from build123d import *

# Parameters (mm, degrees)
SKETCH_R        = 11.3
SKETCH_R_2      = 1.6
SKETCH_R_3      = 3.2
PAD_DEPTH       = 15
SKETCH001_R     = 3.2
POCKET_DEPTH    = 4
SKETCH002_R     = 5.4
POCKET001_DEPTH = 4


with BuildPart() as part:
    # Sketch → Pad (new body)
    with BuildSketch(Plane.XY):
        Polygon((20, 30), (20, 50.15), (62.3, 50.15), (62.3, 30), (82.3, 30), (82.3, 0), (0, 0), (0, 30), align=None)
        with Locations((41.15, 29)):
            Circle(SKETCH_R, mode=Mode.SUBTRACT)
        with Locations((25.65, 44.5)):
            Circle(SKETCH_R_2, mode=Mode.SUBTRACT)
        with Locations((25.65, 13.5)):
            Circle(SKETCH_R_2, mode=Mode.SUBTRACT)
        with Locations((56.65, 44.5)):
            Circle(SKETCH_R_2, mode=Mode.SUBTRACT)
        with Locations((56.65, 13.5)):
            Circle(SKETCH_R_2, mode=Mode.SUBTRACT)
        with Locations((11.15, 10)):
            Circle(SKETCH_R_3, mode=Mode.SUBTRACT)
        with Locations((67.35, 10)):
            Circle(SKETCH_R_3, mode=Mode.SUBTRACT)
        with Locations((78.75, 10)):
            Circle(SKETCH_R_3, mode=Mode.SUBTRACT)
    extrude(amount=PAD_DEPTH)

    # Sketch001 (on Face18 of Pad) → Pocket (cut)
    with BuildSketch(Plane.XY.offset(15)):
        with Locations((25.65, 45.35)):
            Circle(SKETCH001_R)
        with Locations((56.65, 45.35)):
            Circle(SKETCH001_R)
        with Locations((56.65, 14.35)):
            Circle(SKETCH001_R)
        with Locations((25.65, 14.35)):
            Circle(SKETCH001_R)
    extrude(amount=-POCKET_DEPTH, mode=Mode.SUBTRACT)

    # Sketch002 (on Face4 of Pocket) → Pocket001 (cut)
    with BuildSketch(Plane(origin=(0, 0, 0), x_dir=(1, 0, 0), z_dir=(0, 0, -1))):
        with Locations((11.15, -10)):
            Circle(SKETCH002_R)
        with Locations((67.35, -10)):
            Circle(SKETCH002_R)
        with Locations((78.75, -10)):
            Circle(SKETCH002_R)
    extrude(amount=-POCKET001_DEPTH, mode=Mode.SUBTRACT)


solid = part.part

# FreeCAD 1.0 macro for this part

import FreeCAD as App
import Part
import Sketcher
from FreeCAD import Vector

doc = App.newDocument("Part")
body = doc.addObject("PartDesign::Body", "Body")

# Sketch on XY plane
sketch1 = body.newObject("Sketcher::SketchObject", "Sketch")
sketch1.AttachmentSupport = (doc.getObject("XY_Plane"), [""])
sketch1.MapMode = "FlatFace"
sketch1.addGeometry([
    Part.LineSegment(Vector(20, 50.15, 0), Vector(20, 30, 0)),  # 0
    Part.LineSegment(Vector(20, 30, 0), Vector(0, 30, 0)),  # 1
    Part.LineSegment(Vector(0, 30, 0), Vector(0, 0, 0)),  # 2
    Part.LineSegment(Vector(0, 0, 0), Vector(82.3, 0, 0)),  # 3
    Part.LineSegment(Vector(82.3, 0, 0), Vector(82.3, 30, 0)),  # 4
    Part.LineSegment(Vector(82.3, 30, 0), Vector(62.3, 30, 0)),  # 5
    Part.LineSegment(Vector(62.3, 30, 0), Vector(62.3, 50.15, 0)),  # 6
    Part.LineSegment(Vector(62.3, 50.15, 0), Vector(20, 50.15, 0)),  # 7
    Part.Circle(Vector(78.75, 10, 0), Vector(0, 0, 1), 3.2),  # 8
    Part.Circle(Vector(67.35, 10, 0), Vector(0, 0, 1), 3.2),  # 9
    Part.Circle(Vector(56.65, 13.5, 0), Vector(0, 0, 1), 1.6),  # 10
    Part.Circle(Vector(11.15, 10, 0), Vector(0, 0, 1), 3.2),  # 11
    Part.Circle(Vector(25.65, 13.5, 0), Vector(0, 0, 1), 1.6),  # 12
    Part.Circle(Vector(56.65, 44.5, 0), Vector(0, 0, 1), 1.6),  # 13
    Part.Circle(Vector(41.15, 29, 0), Vector(0, 0, 1), 11.3),  # 14
    Part.Circle(Vector(25.65, 44.5, 0), Vector(0, 0, 1), 1.6),  # 15
], False)
sketch1.addConstraint([
    Sketcher.Constraint("Coincident", 0, 2, 1, 1),
    Sketcher.Constraint("Coincident", 1, 2, 2, 1),
    Sketcher.Constraint("Coincident", 2, 2, 3, 1),
    Sketcher.Constraint("Coincident", 3, 2, 4, 1),
    Sketcher.Constraint("Coincident", 4, 2, 5, 1),
    Sketcher.Constraint("Coincident", 5, 2, 6, 1),
    Sketcher.Constraint("Coincident", 6, 2, 7, 1),
    Sketcher.Constraint("Coincident", 7, 2, 0, 1),
    Sketcher.Constraint("Vertical", 0),
    Sketcher.Constraint("Horizontal", 1),
    Sketcher.Constraint("Vertical", 2),
    Sketcher.Constraint("Horizontal", 3),
    Sketcher.Constraint("Vertical", 4),
    Sketcher.Constraint("Horizontal", 5),
    Sketcher.Constraint("Vertical", 6),
    Sketcher.Constraint("Horizontal", 7),
    Sketcher.Constraint("Coincident", 2, 2, -1, 1),
    Sketcher.Constraint("Equal", 8, 9),
    Sketcher.Constraint("Equal", 9, 11),
    Sketcher.Constraint("Equal", 10, 12),
    Sketcher.Constraint("Equal", 12, 13),
    Sketcher.Constraint("Equal", 13, 15),
    Sketcher.Constraint("Horizontal", 8, 3, 9, 3),
    Sketcher.Constraint("Horizontal", 9, 3, 11, 3),
    Sketcher.Constraint("Horizontal", 10, 3, 12, 3),
    Sketcher.Constraint("Horizontal", 13, 3, 15, 3),
    Sketcher.Constraint("Horizontal", 1, 2, 4, 2),
    Sketcher.Constraint("Vertical", 10, 3, 13, 3),
    Sketcher.Constraint("Vertical", 12, 3, 15, 3),
    Sketcher.Constraint("Equal", 1, 5),
    Sketcher.Constraint("Diameter", 8, 6.4),
    Sketcher.Constraint("Diameter", 10, 3.2),
    Sketcher.Constraint("Diameter", 14, 22.6),
    Sketcher.Constraint("DistanceX", 1, 2, 1, 1, 20.0),
    Sketcher.Constraint("DistanceY", 2, 2, 2, 1, 30.0),
    Sketcher.Constraint("DistanceX", 3, 1, 3, 2, 82.3),
    Sketcher.Constraint("DistanceY", -1, 1, 8, 3, 10.0),
    Sketcher.Constraint("DistanceY", -1, 1, 14, 3, 29.0),
    Sketcher.Constraint("DistanceX", 12, 3, 10, 3, 31.0),
    Sketcher.Constraint("DistanceY", 10, 3, 13, 3, 31.0),
    Sketcher.Constraint("DistanceX", 11, 3, 14, 3, 30.0),
    Sketcher.Constraint("DistanceY", 0, 2, 0, 1, 20.15),
    Sketcher.Constraint("DistanceY", -1, 1, 10, 3, 13.5),
    Sketcher.Constraint("DistanceX", 9, 3, 8, 3, 11.4),
    Sketcher.Constraint("DistanceX", 10, 3, 9, 3, 10.7),
    Sketcher.Constraint("DistanceX", 11, 3, 10, 3, 45.5),
    Sketcher.Constraint("DistanceX", -1, 1, 8, 3, 78.75),
])
pad1 = body.newObject("PartDesign::Pad", "Pad")
pad1.Profile = sketch1
pad1.Length = 15

# Sketch on XY plane
sketch2 = body.newObject("Sketcher::SketchObject", "Sketch001")
sketch2.AttachmentSupport = (doc.getObject("XY_Plane"), [""])
sketch2.MapMode = "FlatFace"
sketch2.AttachmentOffset = App.Placement(Vector(0, 0, 15), App.Rotation())
sketch2.addGeometry([
    Part.Circle(Vector(25.65, 45.35, 0), Vector(0, 0, 1), 3.2),
    Part.Circle(Vector(56.65, 45.35, 0), Vector(0, 0, 1), 3.2),
    Part.Circle(Vector(56.65, 14.35, 0), Vector(0, 0, 1), 3.2),
    Part.Circle(Vector(25.65, 14.35, 0), Vector(0, 0, 1), 3.2),
], False)
sketch2.addConstraint([
    Sketcher.Constraint("Equal", 0, 1),
    Sketcher.Constraint("Equal", 1, 2),
    Sketcher.Constraint("Equal", 2, 3),
    Sketcher.Constraint("Horizontal", 0, 3, 1, 3),
    Sketcher.Constraint("Horizontal", 2, 3, 3, 3),
    Sketcher.Constraint("Vertical", 1, 3, 2, 3),
    Sketcher.Constraint("Vertical", 0, 3, 3, 3),
    Sketcher.Constraint("Diameter", 0, 6.4),
    Sketcher.Constraint("DistanceX", 0, 3, 1, 3, 31.0),
    Sketcher.Constraint("DistanceY", 2, 3, 1, 3, 31.0),
    Sketcher.Constraint("DistanceX", -1, 1, 0, 3, 25.65),
    Sketcher.Constraint("DistanceY", -1, 1, 0, 3, 45.35),
])
pocket1 = body.newObject("PartDesign::Pocket", "Pocket")
pocket1.Profile = sketch2
pocket1.Length = 4

# Sketch on XY plane
sketch3 = body.newObject("Sketcher::SketchObject", "Sketch002")
sketch3.AttachmentSupport = (doc.getObject("XY_Plane"), [""])
sketch3.MapMode = "FlatFace"
sketch3.addGeometry([
    Part.Circle(Vector(11.15, 10, 0), Vector(0, 0, 1), 5.4),
    Part.Circle(Vector(67.35, 10, 0), Vector(0, 0, 1), 5.4),
    Part.Circle(Vector(78.75, 10, 0), Vector(0, 0, 1), 5.4),
], False)
sketch3.addConstraint([
    Sketcher.Constraint("Equal", 0, 1),
    Sketcher.Constraint("Equal", 1, 2),
    Sketcher.Constraint("Horizontal", 0, 3, 1, 3),
    Sketcher.Constraint("Horizontal", 1, 3, 2, 3),
    Sketcher.Constraint("Diameter", 0, 10.8),
    Sketcher.Constraint("DistanceY", -1, 1, 0, 3, 10.0),
    Sketcher.Constraint("DistanceX", 0, 3, 1, 3, 56.2),
    Sketcher.Constraint("DistanceX", 1, 3, 2, 3, 11.4),
    Sketcher.Constraint("DistanceX", -1, 1, 0, 3, 11.15),
])
pocket2 = body.newObject("PartDesign::Pocket", "Pocket001")
pocket2.Profile = sketch3
pocket2.Length = 4
pocket2.Reversed = True

doc.recompute()
